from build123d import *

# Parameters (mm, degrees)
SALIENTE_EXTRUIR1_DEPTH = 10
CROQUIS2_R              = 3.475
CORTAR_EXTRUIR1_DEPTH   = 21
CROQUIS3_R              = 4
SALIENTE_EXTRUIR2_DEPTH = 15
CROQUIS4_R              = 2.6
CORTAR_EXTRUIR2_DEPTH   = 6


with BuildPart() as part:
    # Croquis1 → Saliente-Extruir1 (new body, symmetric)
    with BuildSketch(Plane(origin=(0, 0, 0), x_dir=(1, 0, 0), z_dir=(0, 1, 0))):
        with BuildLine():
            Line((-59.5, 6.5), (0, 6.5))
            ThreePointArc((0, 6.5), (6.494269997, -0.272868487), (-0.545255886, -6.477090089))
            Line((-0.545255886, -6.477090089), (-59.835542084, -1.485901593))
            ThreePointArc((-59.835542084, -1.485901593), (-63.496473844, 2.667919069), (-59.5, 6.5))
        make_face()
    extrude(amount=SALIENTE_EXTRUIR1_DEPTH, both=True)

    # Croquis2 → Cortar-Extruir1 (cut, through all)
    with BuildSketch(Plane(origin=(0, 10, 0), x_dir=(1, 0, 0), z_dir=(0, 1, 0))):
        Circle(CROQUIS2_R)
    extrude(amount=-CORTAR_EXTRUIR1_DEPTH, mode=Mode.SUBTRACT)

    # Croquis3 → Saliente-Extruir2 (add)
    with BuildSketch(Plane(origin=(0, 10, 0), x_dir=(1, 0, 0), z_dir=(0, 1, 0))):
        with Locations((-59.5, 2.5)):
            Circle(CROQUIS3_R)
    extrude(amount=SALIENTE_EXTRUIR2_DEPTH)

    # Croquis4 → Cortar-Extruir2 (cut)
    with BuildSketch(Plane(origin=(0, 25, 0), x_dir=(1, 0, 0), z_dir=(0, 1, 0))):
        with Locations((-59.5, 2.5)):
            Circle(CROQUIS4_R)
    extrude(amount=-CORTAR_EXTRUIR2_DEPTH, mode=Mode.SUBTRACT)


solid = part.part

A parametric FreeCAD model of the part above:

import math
import FreeCAD as App
import Part
import Sketcher
Q = App.Units.Quantity

doc = App.newDocument("Part")
body = doc.addObject("PartDesign::Body", "Body")

# Sketch on XZ plane
sketch1 = body.newObject("Sketcher::SketchObject", "Sketch")
sketch1.AttachmentSupport = (doc.getObject("XZ_Plane"), [""])
sketch1.MapMode = "FlatFace"
sketch1.addGeometry(Part.LineSegment(App.Vector(0, -6.5, 0), App.Vector(-59.5, -6.5, 0)), False)
sketch1.addGeometry(Part.ArcOfCircle(Part.Circle(App.Vector(-59.5, -2.5, 0), App.Vector(0, 0, 1), 4), math.radians(95), math.radians(270)), False)
sketch1.addGeometry(Part.LineSegment(App.Vector(-59.8, 1.5, 0), App.Vector(-0.5, 6.5, 0)), False)
sketch1.addGeometry(Part.ArcOfCircle(Part.Circle(App.Vector(0, 0, 0), App.Vector(0, 0, 1), 6.5), math.radians(-90), math.radians(95)), False)
sketch1.addConstraint(Sketcher.Constraint("Tangent", 0, 2, 1, 2))
sketch1.addConstraint(Sketcher.Constraint("Tangent", 1, 1, 2, 1))
sketch1.addConstraint(Sketcher.Constraint("Tangent", 2, 2, 3, 2))
sketch1.addConstraint(Sketcher.Constraint("Tangent", 3, 1, 0, 1))
sketch1.addConstraint(Sketcher.Constraint("Horizontal", 0))
sketch1.addConstraint(Sketcher.Constraint("Coincident", 3, 3, -1, 1))
sketch1.addConstraint(Sketcher.Constraint("Radius", 1, Q("4 mm")))
sketch1.addConstraint(Sketcher.Constraint("Radius", 3, Q("6.5 mm")))
sketch1.addConstraint(Sketcher.Constraint("DistanceX", 0, 2, 0, 1, Q("59.5 mm")))
pad1 = body.newObject("PartDesign::Pad", "Pad")
pad1.Profile = sketch1
pad1.Length = 20
pad1.Midplane = True

# Sketch on XZ plane
sketch2 = body.newObject("Sketcher::SketchObject", "Sketch001")
sketch2.AttachmentSupport = (doc.getObject("XZ_Plane"), [""])
sketch2.MapMode = "FlatFace"
sketch2.AttachmentOffset = App.Placement(App.Vector(0, 0, -10), App.Rotation())
sketch2.addGeometry(Part.Circle(App.Vector(0, 0, 0), App.Vector(0, 0, 1), 3.5), False)
sketch2.addConstraint(Sketcher.Constraint("Coincident", 0, 3, -1, 1))
sketch2.addConstraint(Sketcher.Constraint("Diameter", 0, Q("6.95 mm")))
pocket1 = body.newObject("PartDesign::Pocket", "Pocket")
pocket1.Profile = sketch2
pocket1.Type = "ThroughAll"
pocket1.Reversed = True

# Sketch on XZ plane
sketch3 = body.newObject("Sketcher::SketchObject", "Sketch002")
sketch3.AttachmentSupport = (doc.getObject("XZ_Plane"), [""])
sketch3.MapMode = "FlatFace"
sketch3.AttachmentOffset = App.Placement(App.Vector(0, 0, -10), App.Rotation())
sketch3.addGeometry(Part.Circle(App.Vector(-59.5, -2.5, 0), App.Vector(0, 0, 1), 4), False)
sketch3.addConstraint(Sketcher.Constraint("Diameter", 0, Q("8 mm")))
sketch3.addConstraint(Sketcher.Constraint("DistanceX", 0, 3, -1, 1, Q("59.5 mm")))
sketch3.addConstraint(Sketcher.Constraint("DistanceY", 0, 3, -1, 1, Q("2.5 mm")))
pad2 = body.newObject("PartDesign::Pad", "Pad001")
pad2.Profile = sketch3
pad2.Length = 15
pad2.Reversed = True

# Sketch on XZ plane
sketch4 = body.newObject("Sketcher::SketchObject", "Sketch003")
sketch4.AttachmentSupport = (doc.getObject("XZ_Plane"), [""])
sketch4.MapMode = "FlatFace"
sketch4.AttachmentOffset = App.Placement(App.Vector(0, 0, -25), App.Rotation())
sketch4.addGeometry(Part.Circle(App.Vector(-59.5, -2.5, 0), App.Vector(0, 0, 1), 2.6), False)
sketch4.addConstraint(Sketcher.Constraint("Diameter", 0, Q("5.2 mm")))
sketch4.addConstraint(Sketcher.Constraint("DistanceX", 0, 3, -1, 1, Q("59.5 mm")))
sketch4.addConstraint(Sketcher.Constraint("DistanceY", 0, 3, -1, 1, Q("2.5 mm")))
pocket2 = body.newObject("PartDesign::Pocket", "Pocket001")
pocket2.Profile = sketch4
pocket2.Length = 6
pocket2.Reversed = True

doc.recompute()
